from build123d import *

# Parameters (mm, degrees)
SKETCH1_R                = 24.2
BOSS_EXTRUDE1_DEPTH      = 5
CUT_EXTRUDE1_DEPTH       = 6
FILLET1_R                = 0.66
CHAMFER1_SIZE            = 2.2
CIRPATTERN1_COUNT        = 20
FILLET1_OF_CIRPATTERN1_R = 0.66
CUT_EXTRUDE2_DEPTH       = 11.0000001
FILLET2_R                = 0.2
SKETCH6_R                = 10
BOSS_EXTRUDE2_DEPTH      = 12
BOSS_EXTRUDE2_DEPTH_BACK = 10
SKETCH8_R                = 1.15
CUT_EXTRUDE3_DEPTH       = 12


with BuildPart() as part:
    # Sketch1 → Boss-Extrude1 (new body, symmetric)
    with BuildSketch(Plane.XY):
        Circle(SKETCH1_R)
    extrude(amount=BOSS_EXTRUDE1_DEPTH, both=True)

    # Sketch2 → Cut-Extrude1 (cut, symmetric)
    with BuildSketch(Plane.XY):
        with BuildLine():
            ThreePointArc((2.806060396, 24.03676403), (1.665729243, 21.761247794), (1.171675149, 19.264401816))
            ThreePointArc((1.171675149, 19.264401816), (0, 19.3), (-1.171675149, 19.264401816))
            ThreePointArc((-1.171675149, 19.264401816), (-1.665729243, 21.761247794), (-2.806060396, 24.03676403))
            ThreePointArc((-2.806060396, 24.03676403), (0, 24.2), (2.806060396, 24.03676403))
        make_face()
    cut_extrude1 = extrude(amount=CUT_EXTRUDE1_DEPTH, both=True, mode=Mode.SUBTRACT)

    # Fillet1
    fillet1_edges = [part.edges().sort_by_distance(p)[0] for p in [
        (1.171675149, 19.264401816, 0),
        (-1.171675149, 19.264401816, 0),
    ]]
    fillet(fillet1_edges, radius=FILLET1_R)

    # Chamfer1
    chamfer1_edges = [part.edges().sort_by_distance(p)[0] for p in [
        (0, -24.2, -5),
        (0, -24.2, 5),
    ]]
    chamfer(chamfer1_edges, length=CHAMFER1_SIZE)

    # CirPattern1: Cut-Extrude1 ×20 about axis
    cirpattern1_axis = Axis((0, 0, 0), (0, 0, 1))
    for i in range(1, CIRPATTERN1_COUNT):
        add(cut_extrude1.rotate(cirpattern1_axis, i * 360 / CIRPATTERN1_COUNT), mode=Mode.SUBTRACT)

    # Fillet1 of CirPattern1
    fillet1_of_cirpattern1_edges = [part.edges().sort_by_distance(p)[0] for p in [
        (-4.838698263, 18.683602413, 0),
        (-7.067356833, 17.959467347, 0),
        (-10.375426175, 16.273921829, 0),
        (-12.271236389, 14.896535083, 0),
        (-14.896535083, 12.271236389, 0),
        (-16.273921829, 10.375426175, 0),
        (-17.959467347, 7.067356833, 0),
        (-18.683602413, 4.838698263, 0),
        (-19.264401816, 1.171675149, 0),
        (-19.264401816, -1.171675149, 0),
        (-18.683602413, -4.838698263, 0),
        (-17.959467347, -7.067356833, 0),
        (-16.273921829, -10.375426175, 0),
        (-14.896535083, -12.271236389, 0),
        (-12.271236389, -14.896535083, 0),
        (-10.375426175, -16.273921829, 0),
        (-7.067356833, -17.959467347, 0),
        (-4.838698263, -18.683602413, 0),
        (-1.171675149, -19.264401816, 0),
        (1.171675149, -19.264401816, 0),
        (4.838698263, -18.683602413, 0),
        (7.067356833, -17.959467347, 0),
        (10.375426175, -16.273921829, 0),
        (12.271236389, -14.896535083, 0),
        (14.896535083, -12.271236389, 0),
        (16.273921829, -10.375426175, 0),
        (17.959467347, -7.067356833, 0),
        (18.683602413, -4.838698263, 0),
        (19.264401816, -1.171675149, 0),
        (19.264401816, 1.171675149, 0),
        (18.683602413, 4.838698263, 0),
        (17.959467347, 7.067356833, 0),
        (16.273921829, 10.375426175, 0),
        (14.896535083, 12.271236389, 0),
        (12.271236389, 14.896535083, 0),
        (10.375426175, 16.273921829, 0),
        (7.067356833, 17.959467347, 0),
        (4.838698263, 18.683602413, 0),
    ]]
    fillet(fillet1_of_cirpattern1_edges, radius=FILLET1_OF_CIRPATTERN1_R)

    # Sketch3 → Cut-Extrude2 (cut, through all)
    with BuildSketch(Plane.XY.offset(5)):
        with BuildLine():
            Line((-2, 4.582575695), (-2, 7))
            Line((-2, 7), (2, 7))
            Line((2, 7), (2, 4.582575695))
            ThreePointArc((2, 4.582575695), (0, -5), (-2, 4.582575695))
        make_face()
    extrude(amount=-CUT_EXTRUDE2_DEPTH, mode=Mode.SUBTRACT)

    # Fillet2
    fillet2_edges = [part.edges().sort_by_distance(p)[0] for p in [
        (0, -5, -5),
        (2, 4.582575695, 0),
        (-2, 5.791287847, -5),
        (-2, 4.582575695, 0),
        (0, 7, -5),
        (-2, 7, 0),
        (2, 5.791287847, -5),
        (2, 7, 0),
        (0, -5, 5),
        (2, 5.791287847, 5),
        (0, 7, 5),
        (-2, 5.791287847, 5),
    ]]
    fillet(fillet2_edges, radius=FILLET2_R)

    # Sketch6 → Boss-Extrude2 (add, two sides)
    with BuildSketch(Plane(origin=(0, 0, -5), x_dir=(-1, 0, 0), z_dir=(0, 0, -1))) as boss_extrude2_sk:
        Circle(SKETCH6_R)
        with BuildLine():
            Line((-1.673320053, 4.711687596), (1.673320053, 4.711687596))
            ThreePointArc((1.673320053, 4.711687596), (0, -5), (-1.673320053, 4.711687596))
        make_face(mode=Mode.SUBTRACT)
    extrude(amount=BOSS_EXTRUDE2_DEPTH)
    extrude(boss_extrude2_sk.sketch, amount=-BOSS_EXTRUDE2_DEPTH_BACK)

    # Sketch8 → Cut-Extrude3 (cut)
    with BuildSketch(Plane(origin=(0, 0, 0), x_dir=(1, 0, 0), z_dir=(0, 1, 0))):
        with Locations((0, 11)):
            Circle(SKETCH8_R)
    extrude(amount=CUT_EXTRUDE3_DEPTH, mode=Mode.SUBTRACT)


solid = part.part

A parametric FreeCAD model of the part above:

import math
import FreeCAD as App
import Part
import Sketcher
from FreeCAD import Vector


def edges_at(feature, points):
    """Names of the edges that pass closest to the given points."""
    edges = feature.Shape.Edges
    near = lambda p: min(range(len(edges)), key=lambda i: edges[i].distToShape(Part.Vertex(*p))[0])
    return sorted({f"Edge{near(p) + 1}" for p in points})

doc = App.newDocument("Part")
body = doc.addObject("PartDesign::Body", "Body")

sketch1 = doc.addObject("Sketcher::SketchObject", "Sketch")
body.addObject(sketch1)
sketch1.AttachmentSupport = (doc.XY_Plane, [""])
sketch1.MapMode = "FlatFace"
sketch1.addGeometry(Part.Circle(Vector(0, 0, 0), Vector(0, 0, 1), 24), False)
sketch1.addConstraint([
    Sketcher.Constraint("Coincident", 0, 3, -1, 1),
    Sketcher.Constraint("Diameter", 0, 48.4),
])
pad1 = doc.addObject("PartDesign::Pad", "Pad")
body.addObject(pad1)
pad1.Profile = sketch1
pad1.Length = 10
pad1.Midplane = True

sketch2 = doc.addObject("Sketcher::SketchObject", "Sketch001")
body.addObject(sketch2)
sketch2.AttachmentSupport = (doc.XY_Plane, [""])
sketch2.MapMode = "FlatFace"
sketch2.addGeometry([
    Part.ArcOfCircle(Part.Circle(Vector(10.6, 18.7, 0), Vector(0, 0, 1), 9.5), math.radians(146), math.radians(177)),
    Part.ArcOfCircle(Part.Circle(Vector(0, 0, 0), Vector(0, 0, 1), 24.2), math.radians(83.34), math.radians(96.66)),
    Part.ArcOfCircle(Part.Circle(Vector(-10.6, 18.7, 0), Vector(0, 0, 1), 9.5), math.radians(3), math.radians(34)),
    Part.ArcOfCircle(Part.Circle(Vector(0, 0, 0), Vector(0, 0, 1), 19.3), math.radians(86.52), math.radians(93.48)),
], False)
sketch2.addConstraint([
    Sketcher.Constraint("Coincident", 0, 1, 1, 1),
    Sketcher.Constraint("Coincident", 1, 2, 2, 2),
    Sketcher.Constraint("Coincident", 2, 1, 3, 2),
    Sketcher.Constraint("Coincident", 3, 1, 0, 2),
    Sketcher.Constraint("Coincident", 1, 3, -1, 1),
    Sketcher.Constraint("Coincident", 3, 3, -1, 1),
    Sketcher.Constraint("Equal", 0, 2),
    Sketcher.Constraint("Symmetric", 0, 3, 2, 3, -2),
    Sketcher.Constraint("Radius", 1, 24.2),
    Sketcher.Constraint("Radius", 3, 19.3),
    Sketcher.Constraint("Radius", 0, 9.483362),
    Sketcher.Constraint("DistanceY", -1, 1, 2, 1, 19.264402),
    Sketcher.Constraint("DistanceY", -1, 1, 0, 3, 18.688681),
])
pocket1 = doc.addObject("PartDesign::Pocket", "Pocket")
body.addObject(pocket1)
pocket1.Profile = sketch2
pocket1.Length = 12
pocket1.Midplane = True
doc.recompute()

fillet = doc.addObject("PartDesign::Fillet", "Fillet")
body.addObject(fillet)
fillet.Base = (pocket1, edges_at(pocket1, [(1.172, 19.264, 0), (-1.172, 19.264, 0)]))
fillet.Radius = 0.66
doc.recompute()

chamfer = doc.addObject("PartDesign::Chamfer", "Chamfer")
body.addObject(chamfer)
chamfer.Base = (fillet, edges_at(fillet, [(0, -24.2, -5), (0, -24.2, 5)]))
chamfer.Size = 2.2
doc.recompute()

polarpattern = doc.addObject("PartDesign::PolarPattern", "PolarPattern")
body.addObject(polarpattern)
polarpattern.Originals = [pocket1]
polarpattern.Axis = (doc.Z_Axis, [""])
polarpattern.Angle = 360
polarpattern.Occurrences = 20
body.Tip = polarpattern
doc.recompute()

fillet2 = doc.addObject("PartDesign::Fillet", "Fillet001")
body.addObject(fillet2)
fillet2.Base = (polarpattern, edges_at(polarpattern, [
    (-4.839, 18.684, 0),
    (-7.067, 17.959, 0),
    (-10.375, 16.274, 0),
    (-12.271, 14.897, 0),
    (-14.897, 12.271, 0),
    (-16.274, 10.375, 0),
    (-17.959, 7.067, 0),
    (-18.684, 4.839, 0),
    (-19.264, 1.172, 0),
    (-19.264, -1.172, 0),
    (-18.684, -4.839, 0),
    (-17.959, -7.067, 0),
    (-16.274, -10.375, 0),
    (-14.897, -12.271, 0),
    (-12.271, -14.897, 0),
    (-10.375, -16.274, 0),
    (-7.067, -17.959, 0),
    (-4.839, -18.684, 0),
    (-1.172, -19.264, 0),
    (1.172, -19.264, 0),
    (4.839, -18.684, 0),
    (7.067, -17.959, 0),
    (10.375, -16.274, 0),
    (12.271, -14.897, 0),
    (14.897, -12.271, 0),
    (16.274, -10.375, 0),
    (17.959, -7.067, 0),
    (18.684, -4.839, 0),
    (19.264, -1.172, 0),
    (19.264, 1.172, 0),
    (18.684, 4.839, 0),
    (17.959, 7.067, 0),
    (16.274, 10.375, 0),
    (14.897, 12.271, 0),
    (12.271, 14.897, 0),
    (10.375, 16.274, 0),
    (7.067, 17.959, 0),
    (4.839, 18.684, 0),
]))
fillet2.Radius = 0.66

sketch3 = doc.addObject("Sketcher::SketchObject", "Sketch002")
body.addObject(sketch3)
sketch3.AttachmentSupport = (doc.XY_Plane, [""])
sketch3.MapMode = "FlatFace"
sketch3.AttachmentOffset = App.Placement(Vector(0, 0, 5), App.Rotation())
sketch3.addGeometry([
    Part.LineSegment(Vector(-2, 7, 0), Vector(-2, 4.6, 0)),
    Part.ArcOfCircle(Part.Circle(Vector(0, 0, 0), Vector(0, 0, 1), 5), math.radians(114), math.radians(426)),
    Part.LineSegment(Vector(2, 4.6, 0), Vector(2, 7, 0)),
    Part.LineSegment(Vector(2, 7, 0), Vector(-2, 7, 0)),
], False)
sketch3.addConstraint([
    Sketcher.Constraint("Coincident", 0, 2, 1, 1),
    Sketcher.Constraint("Coincident", 1, 2, 2, 1),
    Sketcher.Constraint("Coincident", 2, 2, 3, 1),
    Sketcher.Constraint("Coincident", 3, 2, 0, 1),
    Sketcher.Constraint("Vertical", 0),
    Sketcher.Constraint("Vertical", 2),
    Sketcher.Constraint("Horizontal", 3),
    Sketcher.Constraint("Coincident", 1, 3, -1, 1),
    Sketcher.Constraint("Horizontal", 0, 2, 1, 2),
    Sketcher.Constraint("Radius", 1, 5.0),
    Sketcher.Constraint("DistanceX", 3, 2, 3, 1, 4.0),
    Sketcher.Constraint("DistanceY", -1, 1, 2, 2, 7.0),
])
pocket2 = doc.addObject("PartDesign::Pocket", "Pocket001")
body.addObject(pocket2)
pocket2.Profile = sketch3
pocket2.Type = "ThroughAll"
doc.recompute()

fillet3 = doc.addObject("PartDesign::Fillet", "Fillet002")
body.addObject(fillet3)
fillet3.Base = (pocket2, edges_at(pocket2, [
    (0, -5, -5),
    (2, 4.583, 0),
    (-2, 5.791, -5),
    (-2, 4.583, 0),
    (0, 7, -5),
    (-2, 7, 0),
    (2, 5.791, -5),
    (2, 7, 0),
    (0, -5, 5),
    (2, 5.791, 5),
    (0, 7, 5),
    (-2, 5.791, 5),
]))
fillet3.Radius = 0.2

sketch4 = doc.addObject("Sketcher::SketchObject", "Sketch003")
body.addObject(sketch4)
sketch4.AttachmentSupport = (doc.XY_Plane, [""])
sketch4.MapMode = "FlatFace"
sketch4.AttachmentOffset = App.Placement(Vector(0, 0, -5), App.Rotation())
sketch4.addGeometry([
    Part.Circle(Vector(0, 0, 0), Vector(0, 0, 1), 10),
    Part.ArcOfCircle(Part.Circle(Vector(0, 0, 0), Vector(0, 0, 1), 5), math.radians(110), math.radians(430)),
    Part.LineSegment(Vector(1.7, 4.7, 0), Vector(-1.7, 4.7, 0)),
], False)
sketch4.addConstraint([
    Sketcher.Constraint("Coincident", 1, 1, 2, 2),
    Sketcher.Constraint("Coincident", 2, 1, 1, 2),
    Sketcher.Constraint("Horizontal", 2),
    Sketcher.Constraint("Coincident", 0, 3, -1, 1),
    Sketcher.Constraint("Coincident", 1, 3, -1, 1),
    Sketcher.Constraint("Diameter", 0, 20.0),
    Sketcher.Constraint("Radius", 1, 5.0),
    Sketcher.Constraint("DistanceX", 2, 2, 2, 1, 3.34664),
])
pad2 = doc.addObject("PartDesign::Pad", "Pad001")
body.addObject(pad2)
pad2.Profile = sketch4
pad2.Type = "TwoLengths"
pad2.Length = 12
pad2.Length2 = 10
pad2.Reversed = True

sketch5 = doc.addObject("Sketcher::SketchObject", "Sketch004")
body.addObject(sketch5)
sketch5.AttachmentSupport = (doc.XZ_Plane, [""])
sketch5.MapMode = "FlatFace"
sketch5.addGeometry(Part.Circle(Vector(0, -11, 0), Vector(0, 0, 1), 1.1), False)
sketch5.addConstraint([
    Sketcher.Constraint("PointOnObject", 0, 3, -2),
    Sketcher.Constraint("Diameter", 0, 2.3),
    Sketcher.Constraint("DistanceY", 0, 3, -1, 1, 11.0),
])
pocket3 = doc.addObject("PartDesign::Pocket", "Pocket002")
body.addObject(pocket3)
pocket3.Profile = sketch5
pocket3.Length = 12

doc.recompute()
